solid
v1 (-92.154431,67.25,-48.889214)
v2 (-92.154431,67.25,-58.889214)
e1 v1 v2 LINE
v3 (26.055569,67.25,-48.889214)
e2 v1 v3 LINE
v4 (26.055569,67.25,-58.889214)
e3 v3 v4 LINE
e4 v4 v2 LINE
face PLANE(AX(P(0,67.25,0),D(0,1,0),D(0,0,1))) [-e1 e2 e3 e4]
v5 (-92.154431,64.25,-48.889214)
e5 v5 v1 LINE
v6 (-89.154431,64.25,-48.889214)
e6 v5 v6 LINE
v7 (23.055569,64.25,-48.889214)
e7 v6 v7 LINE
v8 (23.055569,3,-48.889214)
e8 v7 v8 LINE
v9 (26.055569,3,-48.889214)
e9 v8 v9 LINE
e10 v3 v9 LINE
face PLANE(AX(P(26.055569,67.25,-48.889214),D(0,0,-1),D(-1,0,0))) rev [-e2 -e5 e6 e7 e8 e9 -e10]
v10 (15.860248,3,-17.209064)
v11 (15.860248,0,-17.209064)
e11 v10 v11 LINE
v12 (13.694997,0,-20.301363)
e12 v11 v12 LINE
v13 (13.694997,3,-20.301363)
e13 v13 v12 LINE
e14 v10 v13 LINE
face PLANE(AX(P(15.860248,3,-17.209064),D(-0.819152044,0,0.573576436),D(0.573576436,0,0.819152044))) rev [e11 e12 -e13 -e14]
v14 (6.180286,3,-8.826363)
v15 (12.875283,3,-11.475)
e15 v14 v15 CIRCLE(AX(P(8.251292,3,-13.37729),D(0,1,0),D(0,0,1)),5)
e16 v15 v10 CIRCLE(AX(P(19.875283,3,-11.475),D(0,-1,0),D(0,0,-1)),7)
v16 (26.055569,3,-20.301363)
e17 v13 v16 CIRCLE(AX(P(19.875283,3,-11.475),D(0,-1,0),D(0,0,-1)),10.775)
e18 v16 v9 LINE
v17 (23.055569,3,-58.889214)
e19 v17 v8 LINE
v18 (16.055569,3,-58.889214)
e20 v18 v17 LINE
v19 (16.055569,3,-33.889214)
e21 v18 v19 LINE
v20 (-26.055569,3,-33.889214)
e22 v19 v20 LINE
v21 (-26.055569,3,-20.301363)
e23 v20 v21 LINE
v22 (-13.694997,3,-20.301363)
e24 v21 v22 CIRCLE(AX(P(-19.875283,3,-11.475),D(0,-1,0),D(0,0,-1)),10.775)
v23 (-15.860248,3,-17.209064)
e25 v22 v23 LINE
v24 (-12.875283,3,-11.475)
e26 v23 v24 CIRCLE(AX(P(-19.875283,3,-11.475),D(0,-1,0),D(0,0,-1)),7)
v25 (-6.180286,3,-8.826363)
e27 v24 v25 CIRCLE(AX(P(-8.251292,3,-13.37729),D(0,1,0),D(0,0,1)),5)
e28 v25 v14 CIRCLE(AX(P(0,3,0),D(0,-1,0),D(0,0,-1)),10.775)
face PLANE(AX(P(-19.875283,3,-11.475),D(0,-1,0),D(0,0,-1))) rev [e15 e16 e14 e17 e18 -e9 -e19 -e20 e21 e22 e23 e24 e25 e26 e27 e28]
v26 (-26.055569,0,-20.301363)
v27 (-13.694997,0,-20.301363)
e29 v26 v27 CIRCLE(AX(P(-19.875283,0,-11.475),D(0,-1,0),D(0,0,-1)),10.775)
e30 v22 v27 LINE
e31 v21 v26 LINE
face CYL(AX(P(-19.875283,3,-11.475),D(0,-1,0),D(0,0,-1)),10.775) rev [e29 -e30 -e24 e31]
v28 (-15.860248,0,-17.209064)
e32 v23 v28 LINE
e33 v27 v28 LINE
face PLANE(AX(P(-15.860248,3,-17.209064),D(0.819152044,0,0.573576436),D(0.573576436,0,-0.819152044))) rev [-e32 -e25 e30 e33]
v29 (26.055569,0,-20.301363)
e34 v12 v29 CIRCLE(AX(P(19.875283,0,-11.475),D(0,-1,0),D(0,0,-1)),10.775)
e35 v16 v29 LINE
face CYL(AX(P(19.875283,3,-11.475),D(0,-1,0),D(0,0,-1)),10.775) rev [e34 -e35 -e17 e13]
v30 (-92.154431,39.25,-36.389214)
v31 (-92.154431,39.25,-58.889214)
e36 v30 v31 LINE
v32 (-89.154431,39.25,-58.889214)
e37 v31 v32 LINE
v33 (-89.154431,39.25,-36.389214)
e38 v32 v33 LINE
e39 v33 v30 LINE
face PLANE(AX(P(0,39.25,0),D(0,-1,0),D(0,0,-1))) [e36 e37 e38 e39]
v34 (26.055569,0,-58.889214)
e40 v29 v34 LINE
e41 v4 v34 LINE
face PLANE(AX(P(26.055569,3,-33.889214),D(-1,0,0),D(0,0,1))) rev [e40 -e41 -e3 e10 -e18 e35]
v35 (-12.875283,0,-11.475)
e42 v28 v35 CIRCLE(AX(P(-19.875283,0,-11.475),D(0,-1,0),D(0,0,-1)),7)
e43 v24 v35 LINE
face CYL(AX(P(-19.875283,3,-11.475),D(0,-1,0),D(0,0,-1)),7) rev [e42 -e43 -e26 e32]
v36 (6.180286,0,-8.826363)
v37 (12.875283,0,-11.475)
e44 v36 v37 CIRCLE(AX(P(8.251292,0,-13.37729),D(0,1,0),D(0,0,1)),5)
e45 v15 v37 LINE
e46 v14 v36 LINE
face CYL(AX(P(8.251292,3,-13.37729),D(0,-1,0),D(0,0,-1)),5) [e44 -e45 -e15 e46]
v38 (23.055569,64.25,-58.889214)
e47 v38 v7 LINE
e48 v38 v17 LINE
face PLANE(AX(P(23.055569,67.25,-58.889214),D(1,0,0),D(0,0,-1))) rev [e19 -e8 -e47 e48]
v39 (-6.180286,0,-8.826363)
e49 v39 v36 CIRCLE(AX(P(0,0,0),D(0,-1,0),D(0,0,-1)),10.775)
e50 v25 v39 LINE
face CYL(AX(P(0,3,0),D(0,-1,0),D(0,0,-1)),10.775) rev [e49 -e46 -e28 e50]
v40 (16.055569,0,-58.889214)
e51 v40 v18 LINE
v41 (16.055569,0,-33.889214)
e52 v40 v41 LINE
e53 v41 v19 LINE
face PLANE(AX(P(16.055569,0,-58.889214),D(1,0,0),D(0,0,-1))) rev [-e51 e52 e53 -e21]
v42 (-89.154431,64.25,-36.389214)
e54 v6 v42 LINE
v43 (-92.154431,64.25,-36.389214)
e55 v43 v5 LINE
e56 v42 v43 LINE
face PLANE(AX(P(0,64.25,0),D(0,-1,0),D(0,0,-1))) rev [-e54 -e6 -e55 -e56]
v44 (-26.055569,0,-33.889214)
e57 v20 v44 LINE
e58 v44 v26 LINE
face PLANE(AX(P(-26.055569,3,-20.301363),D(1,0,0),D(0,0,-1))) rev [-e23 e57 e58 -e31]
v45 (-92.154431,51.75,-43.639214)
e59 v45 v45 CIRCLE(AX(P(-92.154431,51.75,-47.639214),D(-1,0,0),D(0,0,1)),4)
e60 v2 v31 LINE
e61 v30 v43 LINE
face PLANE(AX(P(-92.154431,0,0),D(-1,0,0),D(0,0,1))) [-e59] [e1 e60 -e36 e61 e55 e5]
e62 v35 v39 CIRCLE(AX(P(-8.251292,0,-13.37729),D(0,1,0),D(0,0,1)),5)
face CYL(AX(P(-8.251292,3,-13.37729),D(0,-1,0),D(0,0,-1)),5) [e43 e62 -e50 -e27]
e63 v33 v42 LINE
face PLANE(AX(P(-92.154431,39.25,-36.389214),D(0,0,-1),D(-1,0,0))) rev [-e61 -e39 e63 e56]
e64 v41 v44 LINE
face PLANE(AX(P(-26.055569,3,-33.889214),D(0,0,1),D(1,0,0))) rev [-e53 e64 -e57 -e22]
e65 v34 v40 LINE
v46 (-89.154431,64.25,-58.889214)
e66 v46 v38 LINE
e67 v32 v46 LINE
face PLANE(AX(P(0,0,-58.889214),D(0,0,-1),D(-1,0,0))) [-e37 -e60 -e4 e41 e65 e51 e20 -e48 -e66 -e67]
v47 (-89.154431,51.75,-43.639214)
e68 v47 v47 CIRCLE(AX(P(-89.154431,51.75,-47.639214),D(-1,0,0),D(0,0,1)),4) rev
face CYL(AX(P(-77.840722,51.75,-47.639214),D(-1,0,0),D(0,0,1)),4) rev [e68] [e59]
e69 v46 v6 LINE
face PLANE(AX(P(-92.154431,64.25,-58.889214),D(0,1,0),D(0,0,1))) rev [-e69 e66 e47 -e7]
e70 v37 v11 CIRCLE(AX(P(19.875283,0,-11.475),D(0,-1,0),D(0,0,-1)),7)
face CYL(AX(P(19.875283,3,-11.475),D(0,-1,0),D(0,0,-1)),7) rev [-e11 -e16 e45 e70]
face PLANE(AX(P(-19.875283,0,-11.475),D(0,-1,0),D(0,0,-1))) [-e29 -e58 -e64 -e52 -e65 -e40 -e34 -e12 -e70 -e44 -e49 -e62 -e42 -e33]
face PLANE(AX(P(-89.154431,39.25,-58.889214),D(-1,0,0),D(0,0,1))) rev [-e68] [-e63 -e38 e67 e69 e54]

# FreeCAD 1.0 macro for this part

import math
import FreeCAD as App
import Part
import Sketcher
Q = App.Units.Quantity


def add_polygon(sketch, points):
    """Adds a closed chain of lines whose ends are joined by coincident constraints."""
    first, n = sketch.GeometryCount, len(points)
    for a, b in zip(points, points[1:] + points[:1]):
        sketch.addGeometry(Part.LineSegment(App.Vector(*a, 0), App.Vector(*b, 0)), False)
    for i in range(n):
        sketch.addConstraint(Sketcher.Constraint("Coincident", first + i, 2, first + (i + 1) % n, 1))

doc = App.newDocument("Part")
body = doc.addObject("PartDesign::Body", "Body")

# Sketch on XZ plane
sketch1 = body.newObject("Sketcher::SketchObject", "Sketch")
sketch1.AttachmentSupport = (doc.getObject("XZ_Plane"), [""])
sketch1.MapMode = "FlatFace"
sketch1.addGeometry(Part.LineSegment(App.Vector(-13.7, -20.3, 0), App.Vector(-15.9, -17.2, 0)), False)
sketch1.addGeometry(Part.ArcOfCircle(Part.Circle(App.Vector(-19.9, -11.5, 0), App.Vector(0, 0, 1), 7), math.radians(-55), math.radians(0)), False)
sketch1.addGeometry(Part.ArcOfCircle(Part.Circle(App.Vector(-8.3, -13.4, 0), App.Vector(0, 0, 1), 5), math.radians(66), math.radians(158)), False)
sketch1.addGeometry(Part.ArcOfCircle(Part.Circle(App.Vector(0, 0, 0), App.Vector(0, 0, 1), 10.8), math.radians(-125), math.radians(-55)), False)
sketch1.addGeometry(Part.ArcOfCircle(Part.Circle(App.Vector(8.3, -13.4, 0), App.Vector(0, 0, 1), 5), math.radians(22), math.radians(114)), False)
sketch1.addGeometry(Part.ArcOfCircle(Part.Circle(App.Vector(19.9, -11.5, 0), App.Vector(0, 0, 1), 7), math.radians(-180), math.radians(-125)), False)
sketch1.addGeometry(Part.LineSegment(App.Vector(15.9, -17.2, 0), App.Vector(13.7, -20.3, 0)), False)
sketch1.addGeometry(Part.ArcOfCircle(Part.Circle(App.Vector(19.9, -11.5, 0), App.Vector(0, 0, 1), 10.8), math.radians(-125), math.radians(-55)), False)
sketch1.addGeometry(Part.LineSegment(App.Vector(26.1, -20.3, 0), App.Vector(26.1, -33.9, 0)), False)
sketch1.addGeometry(Part.LineSegment(App.Vector(26.1, -33.9, 0), App.Vector(-26.1, -33.9, 0)), False)
sketch1.addGeometry(Part.LineSegment(App.Vector(-26.1, -33.9, 0), App.Vector(-26.1, -20.3, 0)), False)
sketch1.addGeometry(Part.ArcOfCircle(Part.Circle(App.Vector(-19.9, -11.5, 0), App.Vector(0, 0, 1), 10.8), math.radians(-125), math.radians(-55)), False)
sketch1.addConstraint(Sketcher.Constraint("Coincident", 0, 2, 1, 1))
sketch1.addConstraint(Sketcher.Constraint("Coincident", 1, 2, 2, 2))
sketch1.addConstraint(Sketcher.Constraint("Coincident", 2, 1, 3, 1))
sketch1.addConstraint(Sketcher.Constraint("Coincident", 3, 2, 4, 2))
sketch1.addConstraint(Sketcher.Constraint("Coincident", 4, 1, 5, 1))
sketch1.addConstraint(Sketcher.Constraint("Coincident", 5, 2, 6, 1))
sketch1.addConstraint(Sketcher.Constraint("Coincident", 6, 2, 7, 1))
sketch1.addConstraint(Sketcher.Constraint("Coincident", 7, 2, 8, 1))
sketch1.addConstraint(Sketcher.Constraint("Coincident", 8, 2, 9, 1))
sketch1.addConstraint(Sketcher.Constraint("Coincident", 9, 2, 10, 1))
sketch1.addConstraint(Sketcher.Constraint("Coincident", 10, 2, 11, 1))
sketch1.addConstraint(Sketcher.Constraint("Coincident", 11, 2, 0, 1))
sketch1.addConstraint(Sketcher.Constraint("Vertical", 8))
sketch1.addConstraint(Sketcher.Constraint("Horizontal", 9))
sketch1.addConstraint(Sketcher.Constraint("Vertical", 10))
sketch1.addConstraint(Sketcher.Constraint("Coincident", 3, 3, -1, 1))
sketch1.addConstraint(Sketcher.Constraint("Coincident", 7, 3, 5, 3))
sketch1.addConstraint(Sketcher.Constraint("Coincident", 11, 3, 1, 3))
sketch1.addConstraint(Sketcher.Constraint("Equal", 2, 4))
sketch1.addConstraint(Sketcher.Constraint("Equal", 1, 5))
sketch1.addConstraint(Sketcher.Constraint("Equal", 3, 7))
sketch1.addConstraint(Sketcher.Constraint("Equal", 7, 11))
sketch1.addConstraint(Sketcher.Constraint("Symmetric", 2, 3, 4, 3, -2))
sketch1.addConstraint(Sketcher.Constraint("Symmetric", 1, 3, 5, 3, -2))
sketch1.addConstraint(Sketcher.Constraint("Horizontal", 11, 3, 1, 2))
sketch1.addConstraint(Sketcher.Constraint("Horizontal", 0, 2, 5, 2))
sketch1.addConstraint(Sketcher.Constraint("Horizontal", 6, 2, 7, 2))
sketch1.addConstraint(Sketcher.Constraint("Horizontal", 7, 2, 10, 2))
sketch1.addConstraint(Sketcher.Constraint("Horizontal", 10, 2, 11, 2))
sketch1.addConstraint(Sketcher.Constraint("Radius", 1, Q("7 mm")))
sketch1.addConstraint(Sketcher.Constraint("Radius", 2, Q("5 mm")))
sketch1.addConstraint(Sketcher.Constraint("Angle", 0, Q("125 deg")))
sketch1.addConstraint(Sketcher.Constraint("Radius", 3, Q("10.775 mm")))
sketch1.addConstraint(Sketcher.Constraint("DistanceY", 1, 3, -1, 1, Q("11.475 mm")))
sketch1.addConstraint(Sketcher.Constraint("DistanceX", 9, 2, 9, 1, Q("52.111138 mm")))
sketch1.addConstraint(Sketcher.Constraint("DistanceY", 8, 2, 8, 1, Q("13.58785 mm")))
sketch1.addConstraint(Sketcher.Constraint("DistanceY", 0, 2, 2, 1, Q("8.382701 mm")))
sketch1.addConstraint(Sketcher.Constraint("DistanceY", 2, 3, -1, 1, Q("13.37729 mm")))
pad1 = body.newObject("PartDesign::Pad", "Pad")
pad1.Profile = sketch1
pad1.Length = 3
pad1.Reversed = True

# Sketch on XY plane
sketch2 = body.newObject("Sketcher::SketchObject", "Sketch001")
sketch2.AttachmentSupport = (doc.getObject("XY_Plane"), [""])
sketch2.MapMode = "FlatFace"
sketch2.AttachmentOffset = App.Placement(App.Vector(0, 0, -33.889214), App.Rotation())
add_polygon(sketch2, [(26.1, 3), (26.1, 0), (16.1, 0), (16.1, 3)])  # lines 0-3
sketch2.addConstraint(Sketcher.Constraint("Vertical", 0))
sketch2.addConstraint(Sketcher.Constraint("Horizontal", 1))
sketch2.addConstraint(Sketcher.Constraint("Vertical", 2))
sketch2.addConstraint(Sketcher.Constraint("Horizontal", 3))
sketch2.addConstraint(Sketcher.Constraint("PointOnObject", 0, 2, -1))
sketch2.addConstraint(Sketcher.Constraint("DistanceX", 1, 2, 1, 1, Q("10 mm")))
sketch2.addConstraint(Sketcher.Constraint("DistanceY", 0, 2, 0, 1, Q("3 mm")))
sketch2.addConstraint(Sketcher.Constraint("DistanceX", -1, 1, 0, 2, Q("26.055569 mm")))
pad2 = body.newObject("PartDesign::Pad", "Pad001")
pad2.Profile = sketch2
pad2.Length = 25
pad2.Reversed = True

# Sketch on XZ plane
sketch3 = body.newObject("Sketcher::SketchObject", "Sketch002")
sketch3.AttachmentSupport = (doc.getObject("XZ_Plane"), [""])
sketch3.MapMode = "FlatFace"
sketch3.AttachmentOffset = App.Placement(App.Vector(0, 0, -3), App.Rotation())
add_polygon(sketch3, [(23.1, -58.9), (23.1, -48.9), (26.1, -48.9), (26.1, -58.9)])  # lines 0-3
sketch3.addConstraint(Sketcher.Constraint("Vertical", 0))
sketch3.addConstraint(Sketcher.Constraint("Horizontal", 1))
sketch3.addConstraint(Sketcher.Constraint("Vertical", 2))
sketch3.addConstraint(Sketcher.Constraint("Horizontal", 3))
sketch3.addConstraint(Sketcher.Constraint("DistanceX", 1, 1, 1, 2, Q("3 mm")))
sketch3.addConstraint(Sketcher.Constraint("DistanceY", 0, 1, 0, 2, Q("10 mm")))
sketch3.addConstraint(Sketcher.Constraint("DistanceX", -1, 1, 0, 2, Q("23.055569 mm")))
sketch3.addConstraint(Sketcher.Constraint("DistanceY", 0, 2, -1, 1, Q("48.889214 mm")))
pad3 = body.newObject("PartDesign::Pad", "Pad002")
pad3.Profile = sketch3
pad3.Length = 64.25
pad3.Reversed = True

# Sketch on YZ plane
sketch4 = body.newObject("Sketcher::SketchObject", "Sketch003")
sketch4.AttachmentSupport = (doc.getObject("YZ_Plane"), [""])
sketch4.MapMode = "FlatFace"
sketch4.AttachmentOffset = App.Placement(App.Vector(0, 0, 23.055569), App.Rotation())
add_polygon(sketch4, [(67.2, -58.9), (64.2, -58.9), (64.2, -48.9), (67.2, -48.9)])  # lines 0-3
sketch4.addConstraint(Sketcher.Constraint("Horizontal", 0))
sketch4.addConstraint(Sketcher.Constraint("Vertical", 1))
sketch4.addConstraint(Sketcher.Constraint("Horizontal", 2))
sketch4.addConstraint(Sketcher.Constraint("Vertical", 3))
sketch4.addConstraint(Sketcher.Constraint("DistanceX", 0, 2, 0, 1, Q("3 mm")))
sketch4.addConstraint(Sketcher.Constraint("DistanceY", 1, 1, 1, 2, Q("10 mm")))
sketch4.addConstraint(Sketcher.Constraint("DistanceX", -1, 1, 0, 2, Q("64.25 mm")))
sketch4.addConstraint(Sketcher.Constraint("DistanceY", 0, 2, -1, 1, Q("58.889214 mm")))
pad4 = body.newObject("PartDesign::Pad", "Pad003")
pad4.Profile = sketch4
pad4.Length = 115.21
pad4.Reversed = True

# Sketch on XZ plane
sketch5 = body.newObject("Sketcher::SketchObject", "Sketch004")
sketch5.AttachmentSupport = (doc.getObject("XZ_Plane"), [""])
sketch5.MapMode = "FlatFace"
sketch5.AttachmentOffset = App.Placement(App.Vector(0, 0, -64.25), App.Rotation())
add_polygon(sketch5, [(-92.2, -36.4), (-92.2, -58.9), (-89.2, -58.9), (-89.2, -36.4)])  # lines 0-3
sketch5.addConstraint(Sketcher.Constraint("Vertical", 0))
sketch5.addConstraint(Sketcher.Constraint("Horizontal", 1))
sketch5.addConstraint(Sketcher.Constraint("Vertical", 2))
sketch5.addConstraint(Sketcher.Constraint("Horizontal", 3))
sketch5.addConstraint(Sketcher.Constraint("DistanceX", 1, 1, 1, 2, Q("3 mm")))
sketch5.addConstraint(Sketcher.Constraint("DistanceY", 0, 2, 0, 1, Q("22.5 mm")))
sketch5.addConstraint(Sketcher.Constraint("DistanceX", 0, 2, -1, 1, Q("92.154431 mm")))
sketch5.addConstraint(Sketcher.Constraint("DistanceY", 0, 2, -1, 1, Q("58.889214 mm")))
pad5 = body.newObject("PartDesign::Pad", "Pad004")
pad5.Profile = sketch5
pad5.Length = 25

# Sketch on YZ plane
sketch6 = body.newObject("Sketcher::SketchObject", "Sketch005")
sketch6.AttachmentSupport = (doc.getObject("YZ_Plane"), [""])
sketch6.MapMode = "FlatFace"
sketch6.AttachmentOffset = App.Placement(App.Vector(0, 0, -92.154431), App.Rotation())
sketch6.addGeometry(Part.Circle(App.Vector(51.8, -47.6, 0), App.Vector(0, 0, 1), 4), False)
sketch6.addConstraint(Sketcher.Constraint("Diameter", 0, Q("8 mm")))
sketch6.addConstraint(Sketcher.Constraint("DistanceX", -1, 1, 0, 3, Q("51.75 mm")))
sketch6.addConstraint(Sketcher.Constraint("DistanceY", 0, 3, -1, 1, Q("47.639214 mm")))
pocket1 = body.newObject("PartDesign::Pocket", "Pocket")
pocket1.Profile = sketch6
pocket1.Length = 3
pocket1.Reversed = True

doc.recompute()
